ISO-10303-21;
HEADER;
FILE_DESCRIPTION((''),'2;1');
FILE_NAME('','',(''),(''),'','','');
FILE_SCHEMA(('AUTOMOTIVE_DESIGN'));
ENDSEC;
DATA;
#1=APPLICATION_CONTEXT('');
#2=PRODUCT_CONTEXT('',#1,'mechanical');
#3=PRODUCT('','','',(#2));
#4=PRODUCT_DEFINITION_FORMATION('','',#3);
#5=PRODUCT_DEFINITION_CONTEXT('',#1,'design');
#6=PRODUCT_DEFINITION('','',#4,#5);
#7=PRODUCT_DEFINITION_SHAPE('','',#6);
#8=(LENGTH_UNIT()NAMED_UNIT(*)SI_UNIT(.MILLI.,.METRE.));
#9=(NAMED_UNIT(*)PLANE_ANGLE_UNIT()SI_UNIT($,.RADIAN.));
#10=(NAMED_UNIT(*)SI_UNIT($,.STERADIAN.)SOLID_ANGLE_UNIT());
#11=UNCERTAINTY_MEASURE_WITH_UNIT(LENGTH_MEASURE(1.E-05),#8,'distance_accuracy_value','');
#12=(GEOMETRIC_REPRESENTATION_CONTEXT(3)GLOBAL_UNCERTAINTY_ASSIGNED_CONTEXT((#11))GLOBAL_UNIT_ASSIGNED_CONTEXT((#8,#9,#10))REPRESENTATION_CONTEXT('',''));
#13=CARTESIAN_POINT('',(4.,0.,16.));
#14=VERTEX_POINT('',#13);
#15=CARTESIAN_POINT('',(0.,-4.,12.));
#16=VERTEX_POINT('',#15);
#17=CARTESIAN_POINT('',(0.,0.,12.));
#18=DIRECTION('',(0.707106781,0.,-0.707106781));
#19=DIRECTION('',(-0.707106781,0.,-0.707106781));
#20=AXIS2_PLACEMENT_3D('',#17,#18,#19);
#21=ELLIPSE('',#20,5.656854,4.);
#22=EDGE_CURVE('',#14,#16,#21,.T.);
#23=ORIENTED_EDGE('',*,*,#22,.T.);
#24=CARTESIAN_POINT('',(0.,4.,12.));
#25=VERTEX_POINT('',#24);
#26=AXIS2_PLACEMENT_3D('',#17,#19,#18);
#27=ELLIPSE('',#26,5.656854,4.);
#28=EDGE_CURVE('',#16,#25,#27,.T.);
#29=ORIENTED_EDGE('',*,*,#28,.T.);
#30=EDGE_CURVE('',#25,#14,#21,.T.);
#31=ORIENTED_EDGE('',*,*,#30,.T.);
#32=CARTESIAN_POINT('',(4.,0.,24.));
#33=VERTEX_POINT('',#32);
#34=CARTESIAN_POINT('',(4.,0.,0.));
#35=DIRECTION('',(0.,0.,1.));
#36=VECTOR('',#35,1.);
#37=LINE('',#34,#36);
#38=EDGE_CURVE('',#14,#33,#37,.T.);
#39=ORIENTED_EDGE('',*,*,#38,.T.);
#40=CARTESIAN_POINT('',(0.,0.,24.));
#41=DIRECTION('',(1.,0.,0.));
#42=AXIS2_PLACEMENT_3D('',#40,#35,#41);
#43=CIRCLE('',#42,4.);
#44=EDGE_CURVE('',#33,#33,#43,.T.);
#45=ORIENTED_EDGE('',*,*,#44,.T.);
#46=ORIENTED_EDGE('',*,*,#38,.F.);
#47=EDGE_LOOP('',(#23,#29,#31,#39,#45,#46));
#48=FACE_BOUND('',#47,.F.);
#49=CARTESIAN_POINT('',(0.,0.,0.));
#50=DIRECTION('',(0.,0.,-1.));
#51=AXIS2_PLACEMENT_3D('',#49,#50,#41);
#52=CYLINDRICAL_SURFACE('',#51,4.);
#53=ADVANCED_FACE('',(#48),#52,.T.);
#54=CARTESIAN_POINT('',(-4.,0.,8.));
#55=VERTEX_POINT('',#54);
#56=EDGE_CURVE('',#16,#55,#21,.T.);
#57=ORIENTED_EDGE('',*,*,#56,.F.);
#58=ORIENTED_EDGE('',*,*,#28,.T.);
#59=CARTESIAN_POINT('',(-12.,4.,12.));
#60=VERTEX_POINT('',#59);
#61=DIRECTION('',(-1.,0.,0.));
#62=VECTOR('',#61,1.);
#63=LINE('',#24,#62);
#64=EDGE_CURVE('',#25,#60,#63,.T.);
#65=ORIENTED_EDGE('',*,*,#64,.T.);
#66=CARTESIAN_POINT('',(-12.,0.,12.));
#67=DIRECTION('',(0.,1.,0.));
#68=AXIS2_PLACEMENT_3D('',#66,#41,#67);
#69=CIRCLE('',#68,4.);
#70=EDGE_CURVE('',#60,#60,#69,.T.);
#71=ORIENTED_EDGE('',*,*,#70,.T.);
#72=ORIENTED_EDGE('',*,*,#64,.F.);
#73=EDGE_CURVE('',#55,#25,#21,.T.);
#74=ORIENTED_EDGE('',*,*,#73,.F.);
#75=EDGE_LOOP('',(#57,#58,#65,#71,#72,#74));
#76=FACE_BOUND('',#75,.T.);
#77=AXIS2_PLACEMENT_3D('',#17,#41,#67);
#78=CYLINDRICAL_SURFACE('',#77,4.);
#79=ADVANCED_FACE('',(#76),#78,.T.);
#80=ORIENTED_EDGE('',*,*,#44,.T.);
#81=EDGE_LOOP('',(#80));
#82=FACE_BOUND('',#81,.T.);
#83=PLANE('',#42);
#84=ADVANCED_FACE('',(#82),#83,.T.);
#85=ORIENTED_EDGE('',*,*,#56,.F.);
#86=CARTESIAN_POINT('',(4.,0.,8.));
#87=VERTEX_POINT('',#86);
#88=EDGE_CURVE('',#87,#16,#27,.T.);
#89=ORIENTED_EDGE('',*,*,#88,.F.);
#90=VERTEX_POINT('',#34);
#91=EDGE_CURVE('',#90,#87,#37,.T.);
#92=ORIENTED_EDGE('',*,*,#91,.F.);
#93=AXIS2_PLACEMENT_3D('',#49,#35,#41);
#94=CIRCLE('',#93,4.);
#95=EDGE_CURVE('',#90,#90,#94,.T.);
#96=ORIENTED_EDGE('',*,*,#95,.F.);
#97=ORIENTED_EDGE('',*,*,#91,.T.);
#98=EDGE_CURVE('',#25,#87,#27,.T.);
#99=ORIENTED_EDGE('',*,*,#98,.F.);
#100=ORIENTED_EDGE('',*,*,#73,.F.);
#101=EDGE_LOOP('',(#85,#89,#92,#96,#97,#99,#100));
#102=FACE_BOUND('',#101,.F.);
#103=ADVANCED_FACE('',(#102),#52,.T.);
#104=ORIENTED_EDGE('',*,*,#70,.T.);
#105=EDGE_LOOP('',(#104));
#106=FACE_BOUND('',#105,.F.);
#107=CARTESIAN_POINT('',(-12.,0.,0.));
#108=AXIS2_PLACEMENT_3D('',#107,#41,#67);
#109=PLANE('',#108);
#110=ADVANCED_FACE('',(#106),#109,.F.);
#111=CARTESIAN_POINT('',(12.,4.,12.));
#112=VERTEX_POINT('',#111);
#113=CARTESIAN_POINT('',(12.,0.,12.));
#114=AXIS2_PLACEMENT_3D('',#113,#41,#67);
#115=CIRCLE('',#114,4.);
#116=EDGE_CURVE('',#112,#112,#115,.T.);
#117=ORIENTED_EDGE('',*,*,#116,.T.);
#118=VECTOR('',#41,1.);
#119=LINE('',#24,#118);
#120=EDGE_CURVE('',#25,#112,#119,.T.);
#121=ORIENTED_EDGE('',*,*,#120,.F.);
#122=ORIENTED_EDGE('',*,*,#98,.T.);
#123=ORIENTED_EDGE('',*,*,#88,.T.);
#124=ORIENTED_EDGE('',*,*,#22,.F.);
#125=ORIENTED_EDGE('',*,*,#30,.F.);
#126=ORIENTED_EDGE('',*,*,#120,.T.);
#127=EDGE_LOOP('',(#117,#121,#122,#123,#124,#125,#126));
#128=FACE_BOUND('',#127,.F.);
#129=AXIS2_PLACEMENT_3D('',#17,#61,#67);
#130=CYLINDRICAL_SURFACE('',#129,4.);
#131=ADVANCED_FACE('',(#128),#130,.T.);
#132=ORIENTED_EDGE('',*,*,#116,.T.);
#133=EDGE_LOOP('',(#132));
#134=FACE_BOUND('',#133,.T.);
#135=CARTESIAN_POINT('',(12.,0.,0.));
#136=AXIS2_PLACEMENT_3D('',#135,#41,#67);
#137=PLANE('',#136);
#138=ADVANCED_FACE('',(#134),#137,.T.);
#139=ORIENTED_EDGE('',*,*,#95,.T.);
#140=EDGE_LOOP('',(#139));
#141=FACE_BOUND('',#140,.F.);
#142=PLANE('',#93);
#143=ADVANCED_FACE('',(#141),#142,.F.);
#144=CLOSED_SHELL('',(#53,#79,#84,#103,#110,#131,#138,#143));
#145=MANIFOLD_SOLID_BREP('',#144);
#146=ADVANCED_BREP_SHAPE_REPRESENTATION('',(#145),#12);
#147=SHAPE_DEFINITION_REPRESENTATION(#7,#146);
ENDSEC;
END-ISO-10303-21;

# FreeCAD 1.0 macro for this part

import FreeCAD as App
import Part
import Sketcher

V = App.Vector

doc = App.newDocument("Part")
body = doc.addObject("PartDesign::Body", "Body")

sketch1 = body.newObject("Sketcher::SketchObject", "Sketch")
sketch1.AttachmentSupport = (doc.getObject("XY_Plane"), [""])
sketch1.MapMode = "FlatFace"
sketch1.addGeometry(Part.Circle(V(0, 0, 0), V(0, 0, 1), 4), False)
sketch1.addConstraint(Sketcher.Constraint("Coincident", 0, 3, -1, 1))
sketch1.addConstraint(Sketcher.Constraint("Diameter", 0, 8.0))
pad1 = body.newObject("PartDesign::Pad", "Pad")
pad1.Profile = sketch1
pad1.Length = 24

sketch2 = body.newObject("Sketcher::SketchObject", "Sketch001")
sketch2.AttachmentSupport = (doc.getObject("YZ_Plane"), [""])
sketch2.MapMode = "FlatFace"
sketch2.addGeometry(Part.Circle(V(0, 12, 0), V(0, 0, 1), 4), False)
sketch2.addConstraint(Sketcher.Constraint("PointOnObject", 0, 3, -2))
sketch2.addConstraint(Sketcher.Constraint("Diameter", 0, 8.0))
sketch2.addConstraint(Sketcher.Constraint("DistanceY", -1, 1, 0, 3, 12.0))
pad2 = body.newObject("PartDesign::Pad", "Pad001")
pad2.Profile = sketch2
pad2.Length = 24
pad2.Midplane = True

doc.recompute()
